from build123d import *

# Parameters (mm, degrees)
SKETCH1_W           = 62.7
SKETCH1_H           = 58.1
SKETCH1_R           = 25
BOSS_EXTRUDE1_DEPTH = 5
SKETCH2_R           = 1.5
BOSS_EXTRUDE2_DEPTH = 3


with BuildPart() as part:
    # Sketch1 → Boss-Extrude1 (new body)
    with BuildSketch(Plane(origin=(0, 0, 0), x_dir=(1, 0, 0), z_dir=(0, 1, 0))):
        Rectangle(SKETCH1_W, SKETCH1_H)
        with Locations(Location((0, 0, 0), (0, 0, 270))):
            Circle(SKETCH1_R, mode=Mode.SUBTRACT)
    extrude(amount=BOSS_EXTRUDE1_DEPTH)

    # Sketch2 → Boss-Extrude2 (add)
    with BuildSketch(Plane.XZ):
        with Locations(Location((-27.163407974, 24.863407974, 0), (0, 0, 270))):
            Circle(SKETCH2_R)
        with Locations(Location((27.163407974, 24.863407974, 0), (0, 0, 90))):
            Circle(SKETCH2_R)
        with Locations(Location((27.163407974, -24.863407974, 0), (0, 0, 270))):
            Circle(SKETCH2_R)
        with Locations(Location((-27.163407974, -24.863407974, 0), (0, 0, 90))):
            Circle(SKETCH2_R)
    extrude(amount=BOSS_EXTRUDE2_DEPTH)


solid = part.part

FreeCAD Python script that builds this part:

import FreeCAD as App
import Part
import Sketcher
from FreeCAD import Vector


def add_polygon(sketch, points):
    """Adds a closed chain of lines whose ends are joined by coincident constraints."""
    first, n = sketch.GeometryCount, len(points)
    for a, b in zip(points, points[1:] + points[:1]):
        sketch.addGeometry(Part.LineSegment(App.Vector(*a, 0), App.Vector(*b, 0)), False)
    for i in range(n):
        sketch.addConstraint(Sketcher.Constraint("Coincident", first + i, 2, first + (i + 1) % n, 1))

doc = App.newDocument("Part")
body = doc.addObject("PartDesign::Body", "Body")

sketch1 = body.newObject("Sketcher::SketchObject", "Sketch")
sketch1.AttachmentSupport = (doc.getObject("XZ_Plane"), [""])
sketch1.MapMode = "FlatFace"
add_polygon(sketch1, [(-31, -29), (-31, 29), (31, 29), (31, -29)])
sketch1.addGeometry(Part.Circle(Vector(0, 0, 0), Vector(0, 0, 1), 25), False)
sketch1.addConstraint([
    Sketcher.Constraint("Vertical", 0),
    Sketcher.Constraint("Horizontal", 1),
    Sketcher.Constraint("Vertical", 2),
    Sketcher.Constraint("Horizontal", 3),
    Sketcher.Constraint("Coincident", 4, 3, -1, 1),
    Sketcher.Constraint("Symmetric", 0, 2, 2, 2, -1, 1),
    Sketcher.Constraint("Diameter", 4, 50.0),
    Sketcher.Constraint("DistanceX", 1, 1, 1, 2, 62.7),
    Sketcher.Constraint("DistanceY", 0, 1, 0, 2, 58.1),
])
pad1 = body.newObject("PartDesign::Pad", "Pad")
pad1.Profile = sketch1
pad1.Length = 5
pad1.Reversed = True

sketch2 = body.newObject("Sketcher::SketchObject", "Sketch001")
sketch2.AttachmentSupport = (doc.getObject("XZ_Plane"), [""])
sketch2.MapMode = "FlatFace"
sketch2.addGeometry([
    Part.Circle(Vector(-27.2, 24.9, 0), Vector(0, 0, 1), 1.5),
    Part.Circle(Vector(27.2, 24.9, 0), Vector(0, 0, 1), 1.5),
    Part.Circle(Vector(27.2, -24.9, 0), Vector(0, 0, 1), 1.5),
    Part.Circle(Vector(-27.2, -24.9, 0), Vector(0, 0, 1), 1.5),
], False)
sketch2.addConstraint([
    Sketcher.Constraint("Equal", 0, 1),
    Sketcher.Constraint("Equal", 1, 2),
    Sketcher.Constraint("Equal", 2, 3),
    Sketcher.Constraint("Symmetric", 0, 3, 2, 3, -1, 1),
    Sketcher.Constraint("Symmetric", 1, 3, 3, 3, -1, 1),
    Sketcher.Constraint("Symmetric", 0, 3, 1, 3, -2),
    Sketcher.Constraint("Diameter", 0, 3.0),
    Sketcher.Constraint("DistanceX", 0, 3, -1, 1, 27.163408),
    Sketcher.Constraint("DistanceY", -1, 1, 0, 3, 24.863408),
])
pad2 = body.newObject("PartDesign::Pad", "Pad001")
pad2.Profile = sketch2
pad2.Length = 3

doc.recompute()
